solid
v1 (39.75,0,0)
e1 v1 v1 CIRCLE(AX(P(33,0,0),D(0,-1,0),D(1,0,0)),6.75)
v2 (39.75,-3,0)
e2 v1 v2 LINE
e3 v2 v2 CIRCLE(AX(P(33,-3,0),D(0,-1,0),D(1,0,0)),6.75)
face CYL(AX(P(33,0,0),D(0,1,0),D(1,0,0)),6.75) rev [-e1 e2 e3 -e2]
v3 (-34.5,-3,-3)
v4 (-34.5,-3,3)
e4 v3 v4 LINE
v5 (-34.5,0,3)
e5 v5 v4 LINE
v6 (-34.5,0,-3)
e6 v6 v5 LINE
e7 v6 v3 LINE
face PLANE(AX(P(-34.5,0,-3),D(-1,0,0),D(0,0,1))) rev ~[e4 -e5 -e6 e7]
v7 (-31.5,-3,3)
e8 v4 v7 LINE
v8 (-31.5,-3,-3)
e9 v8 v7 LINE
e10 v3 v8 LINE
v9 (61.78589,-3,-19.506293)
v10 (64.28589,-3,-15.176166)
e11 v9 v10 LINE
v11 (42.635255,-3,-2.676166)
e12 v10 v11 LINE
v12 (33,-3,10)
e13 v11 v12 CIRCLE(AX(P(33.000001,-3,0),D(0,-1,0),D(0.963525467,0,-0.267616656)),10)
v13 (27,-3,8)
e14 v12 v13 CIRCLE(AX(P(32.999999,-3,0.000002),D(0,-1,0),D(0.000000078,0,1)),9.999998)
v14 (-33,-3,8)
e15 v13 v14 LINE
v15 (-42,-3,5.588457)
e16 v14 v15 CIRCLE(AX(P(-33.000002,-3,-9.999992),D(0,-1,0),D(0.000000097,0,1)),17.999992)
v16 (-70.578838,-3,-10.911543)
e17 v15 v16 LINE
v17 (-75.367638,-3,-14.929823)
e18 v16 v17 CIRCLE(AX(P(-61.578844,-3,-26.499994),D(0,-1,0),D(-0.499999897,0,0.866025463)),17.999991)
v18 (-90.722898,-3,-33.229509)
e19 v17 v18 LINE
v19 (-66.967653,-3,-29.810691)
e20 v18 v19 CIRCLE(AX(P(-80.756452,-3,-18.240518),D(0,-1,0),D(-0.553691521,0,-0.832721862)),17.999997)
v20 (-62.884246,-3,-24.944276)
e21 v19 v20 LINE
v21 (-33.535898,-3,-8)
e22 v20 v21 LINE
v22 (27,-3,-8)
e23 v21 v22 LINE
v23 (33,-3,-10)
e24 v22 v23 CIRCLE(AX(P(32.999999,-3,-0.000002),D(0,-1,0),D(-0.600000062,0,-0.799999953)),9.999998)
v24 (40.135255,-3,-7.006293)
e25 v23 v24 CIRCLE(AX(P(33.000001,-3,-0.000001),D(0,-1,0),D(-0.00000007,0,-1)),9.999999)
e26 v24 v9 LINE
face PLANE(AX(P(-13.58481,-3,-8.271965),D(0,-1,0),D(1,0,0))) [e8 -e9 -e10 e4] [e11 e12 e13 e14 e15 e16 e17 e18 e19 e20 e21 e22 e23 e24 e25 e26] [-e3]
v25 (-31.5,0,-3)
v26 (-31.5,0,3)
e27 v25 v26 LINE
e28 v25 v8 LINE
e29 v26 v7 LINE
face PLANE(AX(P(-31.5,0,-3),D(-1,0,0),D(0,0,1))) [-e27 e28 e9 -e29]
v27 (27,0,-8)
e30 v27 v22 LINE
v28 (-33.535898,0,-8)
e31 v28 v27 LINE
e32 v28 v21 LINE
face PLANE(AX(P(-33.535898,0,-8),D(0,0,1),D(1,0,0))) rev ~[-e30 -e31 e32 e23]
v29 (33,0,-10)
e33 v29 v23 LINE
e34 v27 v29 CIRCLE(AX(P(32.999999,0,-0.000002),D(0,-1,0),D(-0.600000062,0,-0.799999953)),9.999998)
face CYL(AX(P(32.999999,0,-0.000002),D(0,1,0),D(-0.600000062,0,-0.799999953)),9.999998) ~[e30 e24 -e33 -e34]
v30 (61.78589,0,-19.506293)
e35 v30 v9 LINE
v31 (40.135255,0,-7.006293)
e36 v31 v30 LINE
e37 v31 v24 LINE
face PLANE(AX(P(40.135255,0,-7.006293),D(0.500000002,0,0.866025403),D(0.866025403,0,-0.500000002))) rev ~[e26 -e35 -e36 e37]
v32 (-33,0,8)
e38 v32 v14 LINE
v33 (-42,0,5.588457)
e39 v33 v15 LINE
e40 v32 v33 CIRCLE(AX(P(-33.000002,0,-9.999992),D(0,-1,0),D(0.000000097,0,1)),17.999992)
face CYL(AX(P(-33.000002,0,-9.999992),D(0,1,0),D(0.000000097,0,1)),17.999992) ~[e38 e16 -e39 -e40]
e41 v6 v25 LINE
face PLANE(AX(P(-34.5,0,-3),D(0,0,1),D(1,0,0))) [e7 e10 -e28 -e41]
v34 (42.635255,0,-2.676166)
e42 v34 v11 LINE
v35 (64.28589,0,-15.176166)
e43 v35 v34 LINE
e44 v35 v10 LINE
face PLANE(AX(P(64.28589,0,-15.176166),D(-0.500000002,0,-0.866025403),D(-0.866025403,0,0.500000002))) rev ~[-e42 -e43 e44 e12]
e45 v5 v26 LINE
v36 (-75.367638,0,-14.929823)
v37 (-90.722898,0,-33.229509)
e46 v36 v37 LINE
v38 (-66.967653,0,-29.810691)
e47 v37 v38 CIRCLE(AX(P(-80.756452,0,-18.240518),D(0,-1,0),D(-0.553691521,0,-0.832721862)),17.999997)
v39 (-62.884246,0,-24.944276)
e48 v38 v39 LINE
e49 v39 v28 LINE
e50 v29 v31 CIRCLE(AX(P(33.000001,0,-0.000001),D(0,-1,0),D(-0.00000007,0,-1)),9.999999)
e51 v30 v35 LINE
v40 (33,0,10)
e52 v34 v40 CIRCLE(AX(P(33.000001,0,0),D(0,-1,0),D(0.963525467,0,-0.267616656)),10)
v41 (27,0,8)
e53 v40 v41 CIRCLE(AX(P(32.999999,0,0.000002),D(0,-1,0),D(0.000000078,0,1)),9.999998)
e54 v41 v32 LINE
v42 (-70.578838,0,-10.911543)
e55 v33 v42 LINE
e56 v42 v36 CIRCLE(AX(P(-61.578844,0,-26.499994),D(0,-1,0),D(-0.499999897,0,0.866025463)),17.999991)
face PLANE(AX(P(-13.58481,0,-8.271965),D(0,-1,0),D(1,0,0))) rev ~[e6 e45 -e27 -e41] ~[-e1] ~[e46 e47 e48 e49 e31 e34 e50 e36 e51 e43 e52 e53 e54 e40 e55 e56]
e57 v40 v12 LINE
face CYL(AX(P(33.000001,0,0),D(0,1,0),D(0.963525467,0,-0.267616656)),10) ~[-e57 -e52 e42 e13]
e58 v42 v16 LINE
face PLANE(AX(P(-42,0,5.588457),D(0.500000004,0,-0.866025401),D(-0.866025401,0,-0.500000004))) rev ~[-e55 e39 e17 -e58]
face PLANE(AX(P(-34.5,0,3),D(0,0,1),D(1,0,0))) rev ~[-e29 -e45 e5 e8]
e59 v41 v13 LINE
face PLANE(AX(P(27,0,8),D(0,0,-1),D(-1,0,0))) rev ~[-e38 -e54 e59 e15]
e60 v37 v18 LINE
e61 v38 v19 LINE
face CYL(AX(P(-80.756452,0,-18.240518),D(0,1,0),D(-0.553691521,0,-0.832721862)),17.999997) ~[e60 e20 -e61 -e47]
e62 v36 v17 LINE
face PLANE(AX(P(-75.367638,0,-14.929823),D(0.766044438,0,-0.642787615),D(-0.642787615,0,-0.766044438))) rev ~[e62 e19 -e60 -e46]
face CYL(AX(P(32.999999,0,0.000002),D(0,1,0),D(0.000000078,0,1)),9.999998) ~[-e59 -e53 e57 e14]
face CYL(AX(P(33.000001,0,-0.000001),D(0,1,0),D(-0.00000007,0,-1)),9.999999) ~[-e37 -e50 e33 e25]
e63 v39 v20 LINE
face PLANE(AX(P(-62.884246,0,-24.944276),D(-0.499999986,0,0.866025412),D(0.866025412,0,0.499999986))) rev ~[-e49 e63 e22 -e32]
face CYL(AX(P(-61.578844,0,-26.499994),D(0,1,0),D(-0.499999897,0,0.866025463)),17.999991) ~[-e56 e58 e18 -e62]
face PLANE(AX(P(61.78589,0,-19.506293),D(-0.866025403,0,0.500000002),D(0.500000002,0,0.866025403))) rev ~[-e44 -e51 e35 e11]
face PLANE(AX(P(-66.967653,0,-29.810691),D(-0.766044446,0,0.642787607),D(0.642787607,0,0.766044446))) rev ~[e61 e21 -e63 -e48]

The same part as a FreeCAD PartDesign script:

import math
import FreeCAD as App
import Part
import Sketcher

V = App.Vector
Q = App.Units.Quantity


def add_polygon(sketch, points):
    """Adds a closed chain of lines whose ends are joined by coincident constraints."""
    first, n = sketch.GeometryCount, len(points)
    for a, b in zip(points, points[1:] + points[:1]):
        sketch.addGeometry(Part.LineSegment(App.Vector(*a, 0), App.Vector(*b, 0)), False)
    for i in range(n):
        sketch.addConstraint(Sketcher.Constraint("Coincident", first + i, 2, first + (i + 1) % n, 1))

doc = App.newDocument("Part")
body = doc.addObject("PartDesign::Body", "Body")

sketch1 = body.newObject("Sketcher::SketchObject", "Sketch")
sketch1.AttachmentSupport = (doc.getObject("XZ_Plane"), [""])
sketch1.MapMode = "FlatFace"
sketch1.addGeometry(Part.LineSegment(V(-62.9, -24.9, 0), V(-33.5, -8, 0)), False)
sketch1.addGeometry(Part.LineSegment(V(-33.5, -8, 0), V(27, -8, 0)), False)
sketch1.addGeometry(Part.ArcOfCircle(Part.Circle(V(33, 0, 0), V(0, 0, 1), 10), math.radians(-127), math.radians(-90)), False)
sketch1.addGeometry(Part.ArcOfCircle(Part.Circle(V(33, 0, 0), V(0, 0, 1), 10), math.radians(-90), math.radians(-44)), False)
sketch1.addGeometry(Part.LineSegment(V(40.1, -7, 0), V(61.8, -19.5, 0)), False)
sketch1.addGeometry(Part.LineSegment(V(61.8, -19.5, 0), V(64.3, -15.2, 0)), False)
sketch1.addGeometry(Part.LineSegment(V(64.3, -15.2, 0), V(42.6, -2.7, 0)), False)
sketch1.addGeometry(Part.ArcOfCircle(Part.Circle(V(33, 0, 0), V(0, 0, 1), 10), math.radians(-16), math.radians(90)), False)
sketch1.addGeometry(Part.ArcOfCircle(Part.Circle(V(33, 0, 0), V(0, 0, 1), 10), math.radians(90), math.radians(127)), False)
sketch1.addGeometry(Part.LineSegment(V(27, 8, 0), V(-33, 8, 0)), False)
sketch1.addGeometry(Part.ArcOfCircle(Part.Circle(V(-33, -10, 0), V(0, 0, 1), 18), math.radians(90), math.radians(120)), False)
sketch1.addGeometry(Part.LineSegment(V(-42, 5.6, 0), V(-70.6, -10.9, 0)), False)
sketch1.addGeometry(Part.ArcOfCircle(Part.Circle(V(-61.6, -26.5, 0), V(0, 0, 1), 18), math.radians(120), math.radians(140)), False)
sketch1.addGeometry(Part.LineSegment(V(-75.4, -14.9, 0), V(-90.7, -33.2, 0)), False)
sketch1.addGeometry(Part.ArcOfCircle(Part.Circle(V(-80.8, -18.2, 0), V(0, 0, 1), 18), math.radians(-124), math.radians(-40)), False)
sketch1.addGeometry(Part.LineSegment(V(-67, -29.8, 0), V(-62.9, -24.9, 0)), False)
add_polygon(sketch1, [(-31.5, -3), (-34.5, -3), (-34.5, 3), (-31.5, 3)])
sketch1.addGeometry(Part.Circle(V(33, 0, 0), V(0, 0, 1), 6.8), False)
sketch1.addConstraint([
    Sketcher.Constraint("Coincident", 0, 2, 1, 1),
    Sketcher.Constraint("Coincident", 1, 2, 2, 1),
    Sketcher.Constraint("Tangent", 2, 2, 3, 1),
    Sketcher.Constraint("Coincident", 3, 2, 4, 1),
    Sketcher.Constraint("Coincident", 4, 2, 5, 1),
    Sketcher.Constraint("Coincident", 5, 2, 6, 1),
    Sketcher.Constraint("Coincident", 6, 2, 7, 1),
    Sketcher.Constraint("Tangent", 7, 2, 8, 1),
    Sketcher.Constraint("Coincident", 8, 2, 9, 1),
    Sketcher.Constraint("Tangent", 9, 2, 10, 1),
    Sketcher.Constraint("Tangent", 10, 2, 11, 1),
    Sketcher.Constraint("Tangent", 11, 2, 12, 1),
    Sketcher.Constraint("Tangent", 12, 2, 13, 1),
    Sketcher.Constraint("Coincident", 13, 2, 14, 1),
    Sketcher.Constraint("Tangent", 14, 2, 15, 1),
    Sketcher.Constraint("Coincident", 15, 2, 0, 1),
    Sketcher.Constraint("Horizontal", 1),
    Sketcher.Constraint("Horizontal", 9),
    Sketcher.Constraint("Horizontal", 16),
    Sketcher.Constraint("Vertical", 17),
    Sketcher.Constraint("Horizontal", 18),
    Sketcher.Constraint("Vertical", 19),
    Sketcher.Constraint("Coincident", 7, 3, 2, 3),
    Sketcher.Constraint("Coincident", 20, 3, 2, 3),
    Sketcher.Constraint("Equal", 2, 3),
    Sketcher.Constraint("Equal", 3, 7),
    Sketcher.Constraint("Equal", 7, 8),
    Sketcher.Constraint("Equal", 10, 12),
    Sketcher.Constraint("Symmetric", 2, 2, 7, 2, -1),
    Sketcher.Constraint("Perpendicular", 4, 5),
    Sketcher.Constraint("Perpendicular", 5, 6),
    Sketcher.Constraint("Parallel", 0, 11),
    Sketcher.Constraint("Parallel", 13, 15),
    Sketcher.Constraint("Vertical", 20, 3, 2, 2),
    Sketcher.Constraint("Vertical", 1, 2, 8, 2),
    Sketcher.Constraint("Equal", 4, 6),
    Sketcher.Constraint("Radius", 3, 9.999999),
    Sketcher.Constraint("Diameter", 20, 13.5),
    Sketcher.Constraint("DistanceX", 9, 2, 9, 1, 60.0),
    Sketcher.Constraint("DistanceX", 16, 2, 16, 1, 3.0),
    Sketcher.Constraint("DistanceY", 17, 1, 17, 2, 6.0),
    Sketcher.Constraint("Angle", 0, Q("29.999999 deg")),
    Sketcher.Constraint("Angle", 4, Q("-30 deg")),
    Sketcher.Constraint("Angle", 13, Q("-130 deg")),
    Sketcher.Constraint("Distance", 4, 25.0),
    Sketcher.Constraint("Distance", 5, 5.0),
    Sketcher.Constraint("Distance", 11, 33.0),
    Sketcher.Constraint("DistanceX", -1, 1, 2, 3, 32.999999),
    Sketcher.Constraint("DistanceX", 10, 3, -1, 1, 33.000002),
    Sketcher.Constraint("DistanceX", 10, 2, -1, 1, 42.0),
    Sketcher.Constraint("DistanceY", 16, 2, -1, 1, 3.0),
    Sketcher.Constraint("DistanceX", 16, 2, -1, 1, 34.5),
    Sketcher.Constraint("DistanceX", 1, 1, 1, 2, 60.535898),
    Sketcher.Constraint("Radius", 14, 17.999997),
    Sketcher.Constraint("DistanceX", 13, 2, -1, 1, 90.722898),
    Sketcher.Constraint("DistanceX", 15, 2, 12, 3, 1.305402),
])
pad1 = body.newObject("PartDesign::Pad", "Pad")
pad1.Profile = sketch1
pad1.Length = 3

doc.recompute()
